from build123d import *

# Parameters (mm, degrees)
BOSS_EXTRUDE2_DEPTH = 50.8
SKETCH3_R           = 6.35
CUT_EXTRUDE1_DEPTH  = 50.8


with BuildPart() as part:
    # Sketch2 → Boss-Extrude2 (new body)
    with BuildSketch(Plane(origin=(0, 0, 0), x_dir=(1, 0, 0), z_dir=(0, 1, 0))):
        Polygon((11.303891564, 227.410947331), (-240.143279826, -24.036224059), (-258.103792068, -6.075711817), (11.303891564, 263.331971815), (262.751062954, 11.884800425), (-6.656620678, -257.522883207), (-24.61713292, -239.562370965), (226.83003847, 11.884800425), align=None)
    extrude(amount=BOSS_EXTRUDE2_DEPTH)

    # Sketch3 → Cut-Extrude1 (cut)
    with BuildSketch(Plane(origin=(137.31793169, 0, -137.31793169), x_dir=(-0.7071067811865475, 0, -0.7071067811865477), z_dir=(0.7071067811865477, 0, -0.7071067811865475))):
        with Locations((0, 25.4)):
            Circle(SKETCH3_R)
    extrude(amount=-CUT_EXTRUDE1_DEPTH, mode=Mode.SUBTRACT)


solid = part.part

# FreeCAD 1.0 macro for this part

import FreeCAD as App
import Part
import Sketcher
from FreeCAD import Vector
Q = App.Units.Quantity


def add_polygon(sketch, points):
    """Adds a closed chain of lines whose ends are joined by coincident constraints."""
    first, n = sketch.GeometryCount, len(points)
    for a, b in zip(points, points[1:] + points[:1]):
        sketch.addGeometry(Part.LineSegment(App.Vector(*a, 0), App.Vector(*b, 0)), False)
    for i in range(n):
        sketch.addConstraint(Sketcher.Constraint("Coincident", first + i, 2, first + (i + 1) % n, 1))

doc = App.newDocument("Part")
params = doc.addObject("Spreadsheet::Sheet", "Params")
for row, (alias, value) in enumerate([
    ("sketch1_length", "14 in"),
    ("sketch1_length2", "12 in"),
    ("pad1_length", "2 in"),
    ("sketch2_diameter", "0.5 in"),
    ("pocket1_length", "2 in"),
], start=1):
    params.set(f"A{row}", alias)
    params.set(f"B{row}", "=" + value)
    params.setAlias(f"B{row}", alias)

body = doc.addObject("PartDesign::Body", "Body")

sketch1 = doc.addObject("Sketcher::SketchObject", "Sketch")
body.addObject(sketch1)
sketch1.AttachmentSupport = (doc.XZ_Plane, [""])
sketch1.MapMode = "FlatFace"
add_polygon(sketch1, [(-240, 24), (11, -227), (227, -12), (-25, 240), (-7, 258), (263, -12), (11, -263), (-258, 6)])
sketch1.addConstraint([
    Sketcher.Constraint("Perpendicular", 0, 1),
    Sketcher.Constraint("Perpendicular", 1, 2),
    Sketcher.Constraint("Perpendicular", 2, 3),
    Sketcher.Constraint("Perpendicular", 3, 4),
    Sketcher.Constraint("Perpendicular", 4, 5),
    Sketcher.Constraint("Perpendicular", 5, 6),
    Sketcher.Constraint("Perpendicular", 6, 7),
    Sketcher.Constraint("Horizontal", 1, 2, 4, 2),
    Sketcher.Constraint("Vertical", 0, 2, 5, 2),
    Sketcher.Constraint("Equal", 0, 2),
    Sketcher.Constraint("Equal", 2, 5),
    Sketcher.Constraint("Equal", 3, 7),
    Sketcher.Constraint("Distance", 0, Q("14 in")),
    Sketcher.Constraint("Distance", 1, Q("12 in")),
    Sketcher.Constraint("DistanceY", 1, 2, -1, 1, Q("11.8848 mm")),
    Sketcher.Constraint("DistanceX", -1, 1, 0, 2, Q("11.303892 mm")),
])
sketch1.setExpression("Constraints[20]", "Params.sketch1_length")
sketch1.setExpression("Constraints[21]", "Params.sketch1_length2")
pad1 = doc.addObject("PartDesign::Pad", "Pad")
body.addObject(pad1)
pad1.Profile = sketch1
pad1.setExpression("Length", "Params.pad1_length")
pad1.Reversed = True

sketch2 = doc.addObject("Sketcher::SketchObject", "Sketch001")
body.addObject(sketch2)
sketch2.Placement = App.Placement(Vector(137.317932, 0, -137.317932), App.Rotation(Vector(-0.707106781, 0, -0.707106781), Vector(0, 0.999999999, 0), Vector(0.707106781, 0, -0.707106781), "ZXY"))
sketch2.addGeometry(Part.Circle(Vector(0, 25, 0), Vector(0, 0, 1), 6), False)
sketch2.addConstraint([
    Sketcher.Constraint("PointOnObject", 0, 3, -2),
    Sketcher.Constraint("Diameter", 0, Q("0.5 in")),
    Sketcher.Constraint("DistanceY", -1, 1, 0, 3, Q("1 in")),
])
sketch2.setExpression("Constraints[1]", "Params.sketch2_diameter")
pocket1 = doc.addObject("PartDesign::Pocket", "Pocket")
body.addObject(pocket1)
pocket1.Profile = sketch2
pocket1.setExpression("Length", "Params.pocket1_length")

doc.recompute()
